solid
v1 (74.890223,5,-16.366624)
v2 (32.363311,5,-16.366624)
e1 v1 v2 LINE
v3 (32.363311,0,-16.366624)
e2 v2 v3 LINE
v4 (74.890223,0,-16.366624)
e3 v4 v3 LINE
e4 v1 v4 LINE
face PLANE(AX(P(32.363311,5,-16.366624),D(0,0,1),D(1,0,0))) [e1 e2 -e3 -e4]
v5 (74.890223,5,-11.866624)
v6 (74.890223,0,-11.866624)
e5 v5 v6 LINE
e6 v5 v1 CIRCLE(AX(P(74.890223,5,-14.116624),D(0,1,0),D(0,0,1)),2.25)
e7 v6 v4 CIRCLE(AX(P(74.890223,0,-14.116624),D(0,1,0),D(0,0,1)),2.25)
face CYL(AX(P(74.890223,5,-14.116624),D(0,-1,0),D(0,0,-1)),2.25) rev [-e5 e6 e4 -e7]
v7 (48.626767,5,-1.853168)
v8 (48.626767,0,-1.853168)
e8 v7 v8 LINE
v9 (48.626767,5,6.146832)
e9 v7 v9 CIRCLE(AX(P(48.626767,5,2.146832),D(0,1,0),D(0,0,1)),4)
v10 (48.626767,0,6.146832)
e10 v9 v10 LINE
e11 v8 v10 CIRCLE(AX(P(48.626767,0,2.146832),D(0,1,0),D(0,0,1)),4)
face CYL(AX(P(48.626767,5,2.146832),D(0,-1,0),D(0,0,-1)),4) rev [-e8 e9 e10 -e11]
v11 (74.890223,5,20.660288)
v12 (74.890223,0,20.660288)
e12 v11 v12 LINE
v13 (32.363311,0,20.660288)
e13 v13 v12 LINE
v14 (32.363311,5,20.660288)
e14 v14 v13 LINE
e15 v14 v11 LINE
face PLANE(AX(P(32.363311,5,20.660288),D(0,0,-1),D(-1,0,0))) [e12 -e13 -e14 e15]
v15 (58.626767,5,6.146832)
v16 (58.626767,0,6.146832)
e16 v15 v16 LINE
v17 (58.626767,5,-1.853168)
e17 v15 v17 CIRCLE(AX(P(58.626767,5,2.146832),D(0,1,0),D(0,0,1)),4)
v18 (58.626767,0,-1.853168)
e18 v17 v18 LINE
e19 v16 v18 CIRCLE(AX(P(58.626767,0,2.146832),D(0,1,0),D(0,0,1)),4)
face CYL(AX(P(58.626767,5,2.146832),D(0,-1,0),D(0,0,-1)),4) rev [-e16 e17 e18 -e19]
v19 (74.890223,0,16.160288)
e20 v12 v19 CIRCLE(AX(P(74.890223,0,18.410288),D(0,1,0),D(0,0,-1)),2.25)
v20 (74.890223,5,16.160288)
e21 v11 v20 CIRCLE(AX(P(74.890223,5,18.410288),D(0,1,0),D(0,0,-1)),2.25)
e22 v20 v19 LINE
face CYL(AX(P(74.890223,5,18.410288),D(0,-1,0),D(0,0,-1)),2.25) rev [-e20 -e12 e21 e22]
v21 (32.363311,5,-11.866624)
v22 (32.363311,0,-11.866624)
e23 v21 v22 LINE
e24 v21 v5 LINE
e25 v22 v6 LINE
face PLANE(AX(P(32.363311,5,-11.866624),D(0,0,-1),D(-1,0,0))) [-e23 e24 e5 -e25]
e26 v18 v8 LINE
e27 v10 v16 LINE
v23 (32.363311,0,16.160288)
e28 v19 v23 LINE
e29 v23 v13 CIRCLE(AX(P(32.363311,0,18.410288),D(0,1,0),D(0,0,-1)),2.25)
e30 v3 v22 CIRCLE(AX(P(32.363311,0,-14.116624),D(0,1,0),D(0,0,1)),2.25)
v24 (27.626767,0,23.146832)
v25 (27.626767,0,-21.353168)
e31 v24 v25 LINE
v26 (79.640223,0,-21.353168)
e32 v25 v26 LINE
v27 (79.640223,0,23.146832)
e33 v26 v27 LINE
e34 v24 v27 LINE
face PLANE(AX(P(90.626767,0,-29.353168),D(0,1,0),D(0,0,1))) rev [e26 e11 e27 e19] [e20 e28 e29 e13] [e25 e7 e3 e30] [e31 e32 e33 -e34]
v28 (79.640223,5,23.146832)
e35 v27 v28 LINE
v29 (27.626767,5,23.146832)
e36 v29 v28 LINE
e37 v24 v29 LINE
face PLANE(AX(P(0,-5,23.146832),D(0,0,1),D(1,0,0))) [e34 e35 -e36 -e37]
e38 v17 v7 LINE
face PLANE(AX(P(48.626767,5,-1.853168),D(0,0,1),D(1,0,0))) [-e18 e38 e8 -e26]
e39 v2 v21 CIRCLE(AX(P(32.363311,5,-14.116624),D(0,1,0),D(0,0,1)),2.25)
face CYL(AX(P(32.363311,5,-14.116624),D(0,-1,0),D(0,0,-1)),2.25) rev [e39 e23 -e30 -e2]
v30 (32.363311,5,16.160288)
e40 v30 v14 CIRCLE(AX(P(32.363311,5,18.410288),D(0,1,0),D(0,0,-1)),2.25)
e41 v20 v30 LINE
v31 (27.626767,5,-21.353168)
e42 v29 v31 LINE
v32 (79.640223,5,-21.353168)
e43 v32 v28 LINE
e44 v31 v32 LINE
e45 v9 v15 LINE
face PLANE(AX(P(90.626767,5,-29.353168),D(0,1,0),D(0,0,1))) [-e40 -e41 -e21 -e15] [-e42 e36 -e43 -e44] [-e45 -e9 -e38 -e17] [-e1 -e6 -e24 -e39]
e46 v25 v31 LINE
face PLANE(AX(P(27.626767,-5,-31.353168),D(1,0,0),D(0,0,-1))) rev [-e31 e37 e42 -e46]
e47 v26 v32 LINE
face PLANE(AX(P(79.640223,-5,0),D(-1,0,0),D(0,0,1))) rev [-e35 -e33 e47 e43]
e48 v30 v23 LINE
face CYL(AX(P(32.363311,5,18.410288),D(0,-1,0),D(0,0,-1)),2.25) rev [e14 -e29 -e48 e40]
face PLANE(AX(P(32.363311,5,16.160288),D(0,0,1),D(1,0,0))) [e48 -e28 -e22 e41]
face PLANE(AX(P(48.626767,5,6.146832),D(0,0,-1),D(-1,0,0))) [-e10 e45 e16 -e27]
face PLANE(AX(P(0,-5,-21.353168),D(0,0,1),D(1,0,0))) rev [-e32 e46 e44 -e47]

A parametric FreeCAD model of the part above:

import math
import FreeCAD as App
import Part
import Sketcher
from FreeCAD import Vector
Q = App.Units.Quantity

doc = App.newDocument("Part")
body = doc.addObject("PartDesign::Body", "Body")

sketch1 = body.newObject("Sketcher::SketchObject", "Sketch")
sketch1.AttachmentSupport = (doc.getObject("XZ_Plane"), [""])
sketch1.MapMode = "FlatFace"
sketch1.addGeometry(Part.LineSegment(Vector(-57.4, 43.6, 0), Vector(92.6, 43.6, 0)), False)
sketch1.addGeometry(Part.LineSegment(Vector(92.6, 43.6, 0), Vector(92.6, -29.4, 0)), False)
sketch1.addGeometry(Part.ArcOfCircle(Part.Circle(Vector(90.6, -29.4, 0), Vector(0, 0, 1), 2), math.radians(-90), math.radians(0)), False)
sketch1.addGeometry(Part.LineSegment(Vector(90.6, -31.4, 0), Vector(-57.4, -31.4, 0)), False)
sketch1.addGeometry(Part.LineSegment(Vector(-57.4, -31.4, 0), Vector(-57.4, 43.6, 0)), False)
sketch1.addGeometry(Part.Circle(Vector(-25.4, 2.6, 0), Vector(0, 0, 1), 4), False)
sketch1.addGeometry(Part.LineSegment(Vector(74.9, 20.7, 0), Vector(32.4, 20.7, 0)), False)
sketch1.addGeometry(Part.ArcOfCircle(Part.Circle(Vector(32.4, 18.4, 0), Vector(0, 0, 1), 2.2), math.radians(90), math.radians(270)), False)
sketch1.addGeometry(Part.LineSegment(Vector(32.4, 16.2, 0), Vector(74.9, 16.2, 0)), False)
sketch1.addGeometry(Part.ArcOfCircle(Part.Circle(Vector(74.9, 18.4, 0), Vector(0, 0, 1), 2.2), math.radians(-90), math.radians(90)), False)
sketch1.addGeometry(Part.ArcOfCircle(Part.Circle(Vector(48.6, 2.1, 0), Vector(0, 0, 1), 4), math.radians(90), math.radians(270)), False)
sketch1.addGeometry(Part.LineSegment(Vector(48.6, -1.9, 0), Vector(58.6, -1.9, 0)), False)
sketch1.addGeometry(Part.ArcOfCircle(Part.Circle(Vector(58.6, 2.1, 0), Vector(0, 0, 1), 4), math.radians(-90), math.radians(90)), False)
sketch1.addGeometry(Part.LineSegment(Vector(58.6, 6.1, 0), Vector(48.6, 6.1, 0)), False)
sketch1.addGeometry(Part.ArcOfCircle(Part.Circle(Vector(32.4, -14.1, 0), Vector(0, 0, 1), 2.2), math.radians(90), math.radians(270)), False)
sketch1.addGeometry(Part.LineSegment(Vector(32.4, -16.4, 0), Vector(74.9, -16.4, 0)), False)
sketch1.addGeometry(Part.ArcOfCircle(Part.Circle(Vector(74.9, -14.1, 0), Vector(0, 0, 1), 2.2), math.radians(-90), math.radians(90)), False)
sketch1.addGeometry(Part.LineSegment(Vector(74.9, -11.9, 0), Vector(32.4, -11.9, 0)), False)
sketch1.addConstraint(Sketcher.Constraint("Coincident", 0, 2, 1, 1))
sketch1.addConstraint(Sketcher.Constraint("Tangent", 1, 2, 2, 2))
sketch1.addConstraint(Sketcher.Constraint("Tangent", 2, 1, 3, 1))
sketch1.addConstraint(Sketcher.Constraint("Coincident", 3, 2, 4, 1))
sketch1.addConstraint(Sketcher.Constraint("Coincident", 4, 2, 0, 1))
sketch1.addConstraint(Sketcher.Constraint("Tangent", 6, 2, 7, 1))
sketch1.addConstraint(Sketcher.Constraint("Tangent", 7, 2, 8, 1))
sketch1.addConstraint(Sketcher.Constraint("Tangent", 8, 2, 9, 1))
sketch1.addConstraint(Sketcher.Constraint("Tangent", 9, 2, 6, 1))
sketch1.addConstraint(Sketcher.Constraint("Tangent", 10, 2, 11, 1))
sketch1.addConstraint(Sketcher.Constraint("Tangent", 11, 2, 12, 1))
sketch1.addConstraint(Sketcher.Constraint("Tangent", 12, 2, 13, 1))
sketch1.addConstraint(Sketcher.Constraint("Tangent", 13, 2, 10, 1))
sketch1.addConstraint(Sketcher.Constraint("Tangent", 14, 2, 15, 1))
sketch1.addConstraint(Sketcher.Constraint("Tangent", 15, 2, 16, 1))
sketch1.addConstraint(Sketcher.Constraint("Tangent", 16, 2, 17, 1))
sketch1.addConstraint(Sketcher.Constraint("Tangent", 17, 2, 14, 1))
sketch1.addConstraint(Sketcher.Constraint("Horizontal", 0))
sketch1.addConstraint(Sketcher.Constraint("Vertical", 1))
sketch1.addConstraint(Sketcher.Constraint("Horizontal", 3))
sketch1.addConstraint(Sketcher.Constraint("Vertical", 4))
sketch1.addConstraint(Sketcher.Constraint("Horizontal", 6))
sketch1.addConstraint(Sketcher.Constraint("Horizontal", 8))
sketch1.addConstraint(Sketcher.Constraint("Horizontal", 11))
sketch1.addConstraint(Sketcher.Constraint("Horizontal", 13))
sketch1.addConstraint(Sketcher.Constraint("Horizontal", 15))
sketch1.addConstraint(Sketcher.Constraint("Horizontal", 17))
sketch1.addConstraint(Sketcher.Constraint("Equal", 5, 10))
sketch1.addConstraint(Sketcher.Constraint("Equal", 9, 14))
sketch1.addConstraint(Sketcher.Constraint("Vertical", 7, 3, 14, 3))
sketch1.addConstraint(Sketcher.Constraint("Vertical", 9, 3, 16, 3))
sketch1.addConstraint(Sketcher.Constraint("Diameter", 5, Q("8 mm")))
sketch1.addConstraint(Sketcher.Constraint("Radius", 2, Q("2 mm")))
sketch1.addConstraint(Sketcher.Constraint("DistanceX", 0, 1, 0, 2, Q("150 mm")))
sketch1.addConstraint(Sketcher.Constraint("DistanceX", 11, 1, 11, 2, Q("10 mm")))
sketch1.addConstraint(Sketcher.Constraint("DistanceY", 1, 2, 1, 1, Q("73 mm")))
sketch1.addConstraint(Sketcher.Constraint("Radius", 7, Q("2.25 mm")))
sketch1.addConstraint(Sketcher.Constraint("DistanceX", 5, 3, 2, 3, Q("116 mm")))
sketch1.addConstraint(Sketcher.Constraint("DistanceY", 2, 3, 5, 3, Q("32 mm")))
sketch1.addConstraint(Sketcher.Constraint("DistanceX", 10, 3, 2, 3, Q("42 mm")))
sketch1.addConstraint(Sketcher.Constraint("DistanceY", 2, 3, 10, 3, Q("31.5 mm")))
sketch1.addConstraint(Sketcher.Constraint("DistanceX", 6, 2, 6, 1, Q("42.526912 mm")))
sketch1.addConstraint(Sketcher.Constraint("DistanceY", 2, 3, -1, 1, Q("29.353168 mm")))
sketch1.addConstraint(Sketcher.Constraint("DistanceX", -1, 1, 7, 3, Q("32.363311 mm")))
sketch1.addConstraint(Sketcher.Constraint("DistanceY", 14, 3, 7, 3, Q("32.526912 mm")))
sketch1.addConstraint(Sketcher.Constraint("DistanceX", -1, 1, 2, 3, Q("90.626767 mm")))
sketch1.addConstraint(Sketcher.Constraint("DistanceY", -1, 1, 7, 3, Q("18.410288 mm")))
pad1 = body.newObject("PartDesign::Pad", "Pad")
pad1.Profile = sketch1
pad1.Length = 5
pad1.Reversed = True

sketch2 = body.newObject("Sketcher::SketchObject", "Sketch001")
sketch2.AttachmentSupport = (doc.getObject("XZ_Plane"), [""])
sketch2.MapMode = "FlatFace"
sketch2.AttachmentOffset = App.Placement(Vector(0, 0, -5), App.Rotation())
sketch2.addGeometry(Part.LineSegment(Vector(-13.4, -11.6, 0), Vector(-47.4, -11.6, 0)), False)
sketch2.addGeometry(Part.ArcOfCircle(Part.Circle(Vector(-47.4, -9.4, 0), Vector(0, 0, 1), 2.2), math.radians(90), math.radians(270)), False)
sketch2.addGeometry(Part.LineSegment(Vector(-47.4, -7.1, 0), Vector(-13.4, -7.1, 0)), False)
sketch2.addGeometry(Part.ArcOfCircle(Part.Circle(Vector(-13.4, -9.4, 0), Vector(0, 0, 1), 2.2), math.radians(-90), math.radians(90)), False)
sketch2.addGeometry(Part.LineSegment(Vector(-47.4, 16.9, 0), Vector(-13.4, 16.9, 0)), False)
sketch2.addGeometry(Part.ArcOfCircle(Part.Circle(Vector(-13.4, 14.7, 0), Vector(0, 0, 1), 2.2), math.radians(-90), math.radians(90)), False)
sketch2.addGeometry(Part.LineSegment(Vector(-13.4, 12.4, 0), Vector(-47.4, 12.4, 0)), False)
sketch2.addGeometry(Part.ArcOfCircle(Part.Circle(Vector(-47.4, 14.7, 0), Vector(0, 0, 1), 2.2), math.radians(90), math.radians(270)), False)
sketch2.addGeometry(Part.LineSegment(Vector(-25.4, -1.4, 0), Vector(-35.4, -1.4, 0)), False)
sketch2.addGeometry(Part.ArcOfCircle(Part.Circle(Vector(-35.4, 2.6, 0), Vector(0, 0, 1), 4), math.radians(90), math.radians(270)), False)
sketch2.addGeometry(Part.LineSegment(Vector(-35.4, 6.6, 0), Vector(-25.4, 6.6, 0)), False)
sketch2.addGeometry(Part.ArcOfCircle(Part.Circle(Vector(-25.4, 2.6, 0), Vector(0, 0, 1), 4), math.radians(-90), math.radians(90)), False)
sketch2.addConstraint(Sketcher.Constraint("Tangent", 0, 2, 1, 2))
sketch2.addConstraint(Sketcher.Constraint("Tangent", 1, 1, 2, 1))
sketch2.addConstraint(Sketcher.Constraint("Tangent", 2, 2, 3, 2))
sketch2.addConstraint(Sketcher.Constraint("Tangent", 3, 1, 0, 1))
sketch2.addConstraint(Sketcher.Constraint("Tangent", 4, 2, 5, 2))
sketch2.addConstraint(Sketcher.Constraint("Tangent", 5, 1, 6, 1))
sketch2.addConstraint(Sketcher.Constraint("Tangent", 6, 2, 7, 2))
sketch2.addConstraint(Sketcher.Constraint("Tangent", 7, 1, 4, 1))
sketch2.addConstraint(Sketcher.Constraint("Tangent", 8, 2, 9, 2))
sketch2.addConstraint(Sketcher.Constraint("Tangent", 9, 1, 10, 1))
sketch2.addConstraint(Sketcher.Constraint("Tangent", 10, 2, 11, 2))
sketch2.addConstraint(Sketcher.Constraint("Tangent", 11, 1, 8, 1))
sketch2.addConstraint(Sketcher.Constraint("Horizontal", 0))
sketch2.addConstraint(Sketcher.Constraint("Horizontal", 2))
sketch2.addConstraint(Sketcher.Constraint("Horizontal", 4))
sketch2.addConstraint(Sketcher.Constraint("Horizontal", 6))
sketch2.addConstraint(Sketcher.Constraint("Horizontal", 8))
sketch2.addConstraint(Sketcher.Constraint("Horizontal", 10))
sketch2.addConstraint(Sketcher.Constraint("Equal", 3, 5))
sketch2.addConstraint(Sketcher.Constraint("Vertical", 3, 3, 5, 3))
sketch2.addConstraint(Sketcher.Constraint("Vertical", 1, 3, 7, 3))
sketch2.addConstraint(Sketcher.Constraint("Radius", 9, Q("4 mm")))
sketch2.addConstraint(Sketcher.Constraint("DistanceX", 8, 2, 8, 1, Q("10 mm")))
sketch2.addConstraint(Sketcher.Constraint("Radius", 1, Q("2.25 mm")))
sketch2.addConstraint(Sketcher.Constraint("DistanceX", 0, 2, 0, 1, Q("34.041631 mm")))
sketch2.addConstraint(Sketcher.Constraint("DistanceX", 1, 3, -1, 1, Q("47.394048 mm")))
sketch2.addConstraint(Sketcher.Constraint("DistanceY", -1, 1, 9, 3, Q("2.646832 mm")))
sketch2.addConstraint(Sketcher.Constraint("DistanceY", 3, 3, 5, 3, Q("24.041631 mm")))
sketch2.addConstraint(Sketcher.Constraint("DistanceY", 1, 3, -1, 1, Q("9.373984 mm")))
sketch2.addConstraint(Sketcher.Constraint("DistanceX", 9, 3, -1, 1, Q("35.373233 mm")))
pocket1 = body.newObject("PartDesign::Pocket", "Pocket")
pocket1.Profile = sketch2
pocket1.Length = 10
pocket1.Reversed = True

sketch3 = body.newObject("Sketcher::SketchObject", "Sketch002")
sketch3.AttachmentSupport = (doc.getObject("XZ_Plane"), [""])
sketch3.MapMode = "FlatFace"
sketch3.AttachmentOffset = App.Placement(Vector(0, 0, -5), App.Rotation())
sketch3.addGeometry(Part.LineSegment(Vector(21.7, -3.4, 0), Vector(21.7, -13.4, 0)), False)
sketch3.addGeometry(Part.ArcOfCircle(Part.Circle(Vector(17.7, -13.4, 0), Vector(0, 0, 1), 4), math.radians(180), math.radians(360)), False)
sketch3.addGeometry(Part.LineSegment(Vector(13.7, -13.4, 0), Vector(13.7, -3.4, 0)), False)
sketch3.addGeometry(Part.ArcOfCircle(Part.Circle(Vector(17.7, -3.4, 0), Vector(0, 0, 1), 4), math.radians(0), math.radians(180)), False)
sketch3.addGeometry(Part.LineSegment(Vector(21.7, 24.6, 0), Vector(21.7, 14.6, 0)), False)
sketch3.addGeometry(Part.ArcOfCircle(Part.Circle(Vector(17.7, 14.6, 0), Vector(0, 0, 1), 4), math.radians(180), math.radians(360)), False)
sketch3.addGeometry(Part.LineSegment(Vector(13.7, 14.6, 0), Vector(13.7, 24.6, 0)), False)
sketch3.addGeometry(Part.ArcOfCircle(Part.Circle(Vector(17.7, 24.6, 0), Vector(0, 0, 1), 4), math.radians(0), math.radians(180)), False)
sketch3.addConstraint(Sketcher.Constraint("Tangent", 0, 2, 1, 2))
sketch3.addConstraint(Sketcher.Constraint("Tangent", 1, 1, 2, 1))
sketch3.addConstraint(Sketcher.Constraint("Tangent", 2, 2, 3, 2))
sketch3.addConstraint(Sketcher.Constraint("Tangent", 3, 1, 0, 1))
sketch3.addConstraint(Sketcher.Constraint("Tangent", 4, 2, 5, 2))
sketch3.addConstraint(Sketcher.Constraint("Tangent", 5, 1, 6, 1))
sketch3.addConstraint(Sketcher.Constraint("Tangent", 6, 2, 7, 2))
sketch3.addConstraint(Sketcher.Constraint("Tangent", 7, 1, 4, 1))
sketch3.addConstraint(Sketcher.Constraint("Vertical", 0))
sketch3.addConstraint(Sketcher.Constraint("Vertical", 2))
sketch3.addConstraint(Sketcher.Constraint("Vertical", 4))
sketch3.addConstraint(Sketcher.Constraint("Vertical", 6))
sketch3.addConstraint(Sketcher.Constraint("Equal", 3, 5))
sketch3.addConstraint(Sketcher.Constraint("Vertical", 3, 3, 5, 3))
sketch3.addConstraint(Sketcher.Constraint("Equal", 2, 4))
sketch3.addConstraint(Sketcher.Constraint("Radius", 1, Q("4 mm")))
sketch3.addConstraint(Sketcher.Constraint("DistanceY", 0, 2, 0, 1, Q("10 mm")))
sketch3.addConstraint(Sketcher.Constraint("DistanceY", 3, 3, 5, 3, Q("18 mm")))
sketch3.addConstraint(Sketcher.Constraint("DistanceY", 1, 3, -1, 1, Q("13.353168 mm")))
sketch3.addConstraint(Sketcher.Constraint("DistanceX", -1, 1, 1, 3, Q("17.749404 mm")))
pocket2 = body.newObject("PartDesign::Pocket", "Pocket001")
pocket2.Profile = sketch3
pocket2.Length = 10
pocket2.Reversed = True

sketch4 = body.newObject("Sketcher::SketchObject", "Sketch003")
sketch4.AttachmentSupport = (doc.getObject("XY_Plane"), [""])
sketch4.MapMode = "FlatFace"
sketch4.AttachmentOffset = App.Placement(Vector(0, 0, -31.353168), App.Rotation())
sketch4.addGeometry(Part.Circle(Vector(-47.4, 2.5, 0), Vector(0, 0, 1), 1.6), False)
sketch4.addGeometry(Part.Circle(Vector(82.6, 2.5, 0), Vector(0, 0, 1), 1.6), False)
sketch4.addConstraint(Sketcher.Constraint("Equal", 0, 1))
sketch4.addConstraint(Sketcher.Constraint("Horizontal", 0, 3, 1, 3))
sketch4.addConstraint(Sketcher.Constraint("Diameter", 0, Q("3.2 mm")))
sketch4.addConstraint(Sketcher.Constraint("DistanceX", 0, 3, 1, 3, Q("130 mm")))
sketch4.addConstraint(Sketcher.Constraint("DistanceY", -1, 1, 0, 3, Q("2.5 mm")))
sketch4.addConstraint(Sketcher.Constraint("DistanceX", 0, 3, -1, 1, Q("47.373233 mm")))
pocket3 = body.newObject("PartDesign::Pocket", "Pocket002")
pocket3.Profile = sketch4
pocket3.Length = 10
pocket3.Reversed = True

sketch5 = body.newObject("Sketcher::SketchObject", "Sketch004")
sketch5.AttachmentSupport = (doc.getObject("XZ_Plane"), [""])
sketch5.MapMode = "FlatFace"
sketch5.AttachmentOffset = App.Placement(Vector(0, 0, -5), App.Rotation())
sketch5.addGeometry(Part.LineSegment(Vector(-57, -31, 0), Vector(-57, 44, 0)), False)
sketch5.addGeometry(Part.LineSegment(Vector(-57, 44, 0), Vector(28, 44, 0)), False)
sketch5.addGeometry(Part.LineSegment(Vector(28, 44, 0), Vector(28, -31, 0)), False)
sketch5.addGeometry(Part.LineSegment(Vector(28, -31, 0), Vector(-57, -31, 0)), False)
sketch5.addConstraint(Sketcher.Constraint("Coincident", 0, 2, 1, 1))
sketch5.addConstraint(Sketcher.Constraint("Coincident", 1, 2, 2, 1))
sketch5.addConstraint(Sketcher.Constraint("Coincident", 2, 2, 3, 1))
sketch5.addConstraint(Sketcher.Constraint("Coincident", 3, 2, 0, 1))
sketch5.addConstraint(Sketcher.Constraint("Vertical", 0))
sketch5.addConstraint(Sketcher.Constraint("Horizontal", 1))
sketch5.addConstraint(Sketcher.Constraint("Vertical", 2))
sketch5.addConstraint(Sketcher.Constraint("Horizontal", 3))
sketch5.addConstraint(Sketcher.Constraint("DistanceX", 1, 1, 1, 2, Q("85 mm")))
sketch5.addConstraint(Sketcher.Constraint("DistanceY", 0, 1, 0, 2, Q("75 mm")))
sketch5.addConstraint(Sketcher.Constraint("DistanceY", -1, 1, 0, 2, Q("43.646832 mm")))
sketch5.addConstraint(Sketcher.Constraint("DistanceX", 0, 2, -1, 1, Q("57.373233 mm")))
pocket4 = body.newObject("PartDesign::Pocket", "Pocket003")
pocket4.Profile = sketch5
pocket4.Length = 10
pocket4.Reversed = True

sketch6 = body.newObject("Sketcher::SketchObject", "Sketch005")
sketch6.AttachmentSupport = (doc.getObject("XZ_Plane"), [""])
sketch6.MapMode = "FlatFace"
sketch6.AttachmentOffset = App.Placement(Vector(0, 0, -5), App.Rotation())
sketch6.addGeometry(Part.LineSegment(Vector(28, 29, 0), Vector(28, 44, 0)), False)
sketch6.addGeometry(Part.LineSegment(Vector(28, 44, 0), Vector(93, 44, 0)), False)
sketch6.addGeometry(Part.LineSegment(Vector(93, 44, 0), Vector(93, 29, 0)), False)
sketch6.addGeometry(Part.LineSegment(Vector(93, 29, 0), Vector(28, 29, 0)), False)
sketch6.addConstraint(Sketcher.Constraint("Coincident", 0, 2, 1, 1))
sketch6.addConstraint(Sketcher.Constraint("Coincident", 1, 2, 2, 1))
sketch6.addConstraint(Sketcher.Constraint("Coincident", 2, 2, 3, 1))
sketch6.addConstraint(Sketcher.Constraint("Coincident", 3, 2, 0, 1))
sketch6.addConstraint(Sketcher.Constraint("Vertical", 0))
sketch6.addConstraint(Sketcher.Constraint("Horizontal", 1))
sketch6.addConstraint(Sketcher.Constraint("Vertical", 2))
sketch6.addConstraint(Sketcher.Constraint("Horizontal", 3))
sketch6.addConstraint(Sketcher.Constraint("DistanceX", 1, 1, 1, 2, Q("65 mm")))
sketch6.addConstraint(Sketcher.Constraint("DistanceY", 0, 1, 0, 2, Q("15 mm")))
sketch6.addConstraint(Sketcher.Constraint("DistanceY", -1, 1, 0, 2, Q("43.646832 mm")))
sketch6.addConstraint(Sketcher.Constraint("DistanceX", -1, 1, 0, 2, Q("27.626767 mm")))
pocket5 = body.newObject("PartDesign::Pocket", "Pocket004")
pocket5.Profile = sketch6
pocket5.Length = 10
pocket5.Reversed = True

sketch7 = body.newObject("Sketcher::SketchObject", "Sketch006")
sketch7.AttachmentSupport = (doc.getObject("XZ_Plane"), [""])
sketch7.MapMode = "FlatFace"
sketch7.AttachmentOffset = App.Placement(Vector(0, 0, -5), App.Rotation())
sketch7.addGeometry(Part.LineSegment(Vector(90.6, -31.4, 0), Vector(27.6, -31.4, 0)), False)
sketch7.addGeometry(Part.LineSegment(Vector(27.6, -31.4, 0), Vector(27.6, -21.4, 0)), False)
sketch7.addGeometry(Part.LineSegment(Vector(27.6, -21.4, 0), Vector(79.6, -21.4, 0)), False)
sketch7.addGeometry(Part.LineSegment(Vector(79.6, -21.4, 0), Vector(79.6, 28.6, 0)), False)
sketch7.addGeometry(Part.LineSegment(Vector(79.6, 28.6, 0), Vector(92.6, 28.6, 0)), False)
sketch7.addGeometry(Part.LineSegment(Vector(92.6, 28.6, 0), Vector(92.6, -29.4, 0)), False)
sketch7.addGeometry(Part.ArcOfCircle(Part.Circle(Vector(90.6, -29.4, 0), Vector(0, 0, 1), 2), math.radians(-90), math.radians(0)), False)
sketch7.addConstraint(Sketcher.Constraint("Coincident", 0, 2, 1, 1))
sketch7.addConstraint(Sketcher.Constraint("Coincident", 1, 2, 2, 1))
sketch7.addConstraint(Sketcher.Constraint("Coincident", 2, 2, 3, 1))
sketch7.addConstraint(Sketcher.Constraint("Coincident", 3, 2, 4, 1))
sketch7.addConstraint(Sketcher.Constraint("Coincident", 4, 2, 5, 1))
sketch7.addConstraint(Sketcher.Constraint("Tangent", 5, 2, 6, 2))
sketch7.addConstraint(Sketcher.Constraint("Tangent", 6, 1, 0, 1))
sketch7.addConstraint(Sketcher.Constraint("Horizontal", 0))
sketch7.addConstraint(Sketcher.Constraint("Vertical", 1))
sketch7.addConstraint(Sketcher.Constraint("Horizontal", 2))
sketch7.addConstraint(Sketcher.Constraint("Vertical", 3))
sketch7.addConstraint(Sketcher.Constraint("Horizontal", 4))
sketch7.addConstraint(Sketcher.Constraint("Vertical", 5))
sketch7.addConstraint(Sketcher.Constraint("Radius", 6, Q("2 mm")))
sketch7.addConstraint(Sketcher.Constraint("DistanceX", 0, 2, 0, 1, Q("63 mm")))
sketch7.addConstraint(Sketcher.Constraint("DistanceY", 1, 1, 1, 2, Q("10 mm")))
sketch7.addConstraint(Sketcher.Constraint("DistanceY", 3, 1, 3, 2, Q("50 mm")))
sketch7.addConstraint(Sketcher.Constraint("DistanceX", 2, 1, 2, 2, Q("52.013456 mm")))
sketch7.addConstraint(Sketcher.Constraint("DistanceY", 6, 3, -1, 1, Q("29.353168 mm")))
sketch7.addConstraint(Sketcher.Constraint("DistanceX", -1, 1, 6, 3, Q("90.626767 mm")))
pocket6 = body.newObject("PartDesign::Pocket", "Pocket005")
pocket6.Profile = sketch7
pocket6.Length = 10
pocket6.Reversed = True

sketch8 = body.newObject("Sketcher::SketchObject", "Sketch007")
sketch8.AttachmentSupport = (doc.getObject("XZ_Plane"), [""])
sketch8.MapMode = "FlatFace"
sketch8.AttachmentOffset = App.Placement(Vector(0, 0, -5), App.Rotation())
sketch8.addGeometry(Part.LineSegment(Vector(28, 23, 0), Vector(28, 29, 0)), False)
sketch8.addGeometry(Part.LineSegment(Vector(28, 29, 0), Vector(80, 29, 0)), False)
sketch8.addGeometry(Part.LineSegment(Vector(80, 29, 0), Vector(80, 23, 0)), False)
sketch8.addGeometry(Part.LineSegment(Vector(80, 23, 0), Vector(28, 23, 0)), False)
sketch8.addConstraint(Sketcher.Constraint("Coincident", 0, 2, 1, 1))
sketch8.addConstraint(Sketcher.Constraint("Coincident", 1, 2, 2, 1))
sketch8.addConstraint(Sketcher.Constraint("Coincident", 2, 2, 3, 1))
sketch8.addConstraint(Sketcher.Constraint("Coincident", 3, 2, 0, 1))
sketch8.addConstraint(Sketcher.Constraint("Vertical", 0))
sketch8.addConstraint(Sketcher.Constraint("Horizontal", 1))
sketch8.addConstraint(Sketcher.Constraint("Vertical", 2))
sketch8.addConstraint(Sketcher.Constraint("Horizontal", 3))
sketch8.addConstraint(Sketcher.Constraint("DistanceY", 0, 1, 0, 2, Q("5.5 mm")))
sketch8.addConstraint(Sketcher.Constraint("DistanceX", 1, 1, 1, 2, Q("52.013456 mm")))
sketch8.addConstraint(Sketcher.Constraint("DistanceY", -1, 1, 0, 2, Q("28.646832 mm")))
sketch8.addConstraint(Sketcher.Constraint("DistanceX", -1, 1, 0, 2, Q("27.626767 mm")))
pocket7 = body.newObject("PartDesign::Pocket", "Pocket006")
pocket7.Profile = sketch8
pocket7.Length = 10
pocket7.Reversed = True

doc.recompute()
